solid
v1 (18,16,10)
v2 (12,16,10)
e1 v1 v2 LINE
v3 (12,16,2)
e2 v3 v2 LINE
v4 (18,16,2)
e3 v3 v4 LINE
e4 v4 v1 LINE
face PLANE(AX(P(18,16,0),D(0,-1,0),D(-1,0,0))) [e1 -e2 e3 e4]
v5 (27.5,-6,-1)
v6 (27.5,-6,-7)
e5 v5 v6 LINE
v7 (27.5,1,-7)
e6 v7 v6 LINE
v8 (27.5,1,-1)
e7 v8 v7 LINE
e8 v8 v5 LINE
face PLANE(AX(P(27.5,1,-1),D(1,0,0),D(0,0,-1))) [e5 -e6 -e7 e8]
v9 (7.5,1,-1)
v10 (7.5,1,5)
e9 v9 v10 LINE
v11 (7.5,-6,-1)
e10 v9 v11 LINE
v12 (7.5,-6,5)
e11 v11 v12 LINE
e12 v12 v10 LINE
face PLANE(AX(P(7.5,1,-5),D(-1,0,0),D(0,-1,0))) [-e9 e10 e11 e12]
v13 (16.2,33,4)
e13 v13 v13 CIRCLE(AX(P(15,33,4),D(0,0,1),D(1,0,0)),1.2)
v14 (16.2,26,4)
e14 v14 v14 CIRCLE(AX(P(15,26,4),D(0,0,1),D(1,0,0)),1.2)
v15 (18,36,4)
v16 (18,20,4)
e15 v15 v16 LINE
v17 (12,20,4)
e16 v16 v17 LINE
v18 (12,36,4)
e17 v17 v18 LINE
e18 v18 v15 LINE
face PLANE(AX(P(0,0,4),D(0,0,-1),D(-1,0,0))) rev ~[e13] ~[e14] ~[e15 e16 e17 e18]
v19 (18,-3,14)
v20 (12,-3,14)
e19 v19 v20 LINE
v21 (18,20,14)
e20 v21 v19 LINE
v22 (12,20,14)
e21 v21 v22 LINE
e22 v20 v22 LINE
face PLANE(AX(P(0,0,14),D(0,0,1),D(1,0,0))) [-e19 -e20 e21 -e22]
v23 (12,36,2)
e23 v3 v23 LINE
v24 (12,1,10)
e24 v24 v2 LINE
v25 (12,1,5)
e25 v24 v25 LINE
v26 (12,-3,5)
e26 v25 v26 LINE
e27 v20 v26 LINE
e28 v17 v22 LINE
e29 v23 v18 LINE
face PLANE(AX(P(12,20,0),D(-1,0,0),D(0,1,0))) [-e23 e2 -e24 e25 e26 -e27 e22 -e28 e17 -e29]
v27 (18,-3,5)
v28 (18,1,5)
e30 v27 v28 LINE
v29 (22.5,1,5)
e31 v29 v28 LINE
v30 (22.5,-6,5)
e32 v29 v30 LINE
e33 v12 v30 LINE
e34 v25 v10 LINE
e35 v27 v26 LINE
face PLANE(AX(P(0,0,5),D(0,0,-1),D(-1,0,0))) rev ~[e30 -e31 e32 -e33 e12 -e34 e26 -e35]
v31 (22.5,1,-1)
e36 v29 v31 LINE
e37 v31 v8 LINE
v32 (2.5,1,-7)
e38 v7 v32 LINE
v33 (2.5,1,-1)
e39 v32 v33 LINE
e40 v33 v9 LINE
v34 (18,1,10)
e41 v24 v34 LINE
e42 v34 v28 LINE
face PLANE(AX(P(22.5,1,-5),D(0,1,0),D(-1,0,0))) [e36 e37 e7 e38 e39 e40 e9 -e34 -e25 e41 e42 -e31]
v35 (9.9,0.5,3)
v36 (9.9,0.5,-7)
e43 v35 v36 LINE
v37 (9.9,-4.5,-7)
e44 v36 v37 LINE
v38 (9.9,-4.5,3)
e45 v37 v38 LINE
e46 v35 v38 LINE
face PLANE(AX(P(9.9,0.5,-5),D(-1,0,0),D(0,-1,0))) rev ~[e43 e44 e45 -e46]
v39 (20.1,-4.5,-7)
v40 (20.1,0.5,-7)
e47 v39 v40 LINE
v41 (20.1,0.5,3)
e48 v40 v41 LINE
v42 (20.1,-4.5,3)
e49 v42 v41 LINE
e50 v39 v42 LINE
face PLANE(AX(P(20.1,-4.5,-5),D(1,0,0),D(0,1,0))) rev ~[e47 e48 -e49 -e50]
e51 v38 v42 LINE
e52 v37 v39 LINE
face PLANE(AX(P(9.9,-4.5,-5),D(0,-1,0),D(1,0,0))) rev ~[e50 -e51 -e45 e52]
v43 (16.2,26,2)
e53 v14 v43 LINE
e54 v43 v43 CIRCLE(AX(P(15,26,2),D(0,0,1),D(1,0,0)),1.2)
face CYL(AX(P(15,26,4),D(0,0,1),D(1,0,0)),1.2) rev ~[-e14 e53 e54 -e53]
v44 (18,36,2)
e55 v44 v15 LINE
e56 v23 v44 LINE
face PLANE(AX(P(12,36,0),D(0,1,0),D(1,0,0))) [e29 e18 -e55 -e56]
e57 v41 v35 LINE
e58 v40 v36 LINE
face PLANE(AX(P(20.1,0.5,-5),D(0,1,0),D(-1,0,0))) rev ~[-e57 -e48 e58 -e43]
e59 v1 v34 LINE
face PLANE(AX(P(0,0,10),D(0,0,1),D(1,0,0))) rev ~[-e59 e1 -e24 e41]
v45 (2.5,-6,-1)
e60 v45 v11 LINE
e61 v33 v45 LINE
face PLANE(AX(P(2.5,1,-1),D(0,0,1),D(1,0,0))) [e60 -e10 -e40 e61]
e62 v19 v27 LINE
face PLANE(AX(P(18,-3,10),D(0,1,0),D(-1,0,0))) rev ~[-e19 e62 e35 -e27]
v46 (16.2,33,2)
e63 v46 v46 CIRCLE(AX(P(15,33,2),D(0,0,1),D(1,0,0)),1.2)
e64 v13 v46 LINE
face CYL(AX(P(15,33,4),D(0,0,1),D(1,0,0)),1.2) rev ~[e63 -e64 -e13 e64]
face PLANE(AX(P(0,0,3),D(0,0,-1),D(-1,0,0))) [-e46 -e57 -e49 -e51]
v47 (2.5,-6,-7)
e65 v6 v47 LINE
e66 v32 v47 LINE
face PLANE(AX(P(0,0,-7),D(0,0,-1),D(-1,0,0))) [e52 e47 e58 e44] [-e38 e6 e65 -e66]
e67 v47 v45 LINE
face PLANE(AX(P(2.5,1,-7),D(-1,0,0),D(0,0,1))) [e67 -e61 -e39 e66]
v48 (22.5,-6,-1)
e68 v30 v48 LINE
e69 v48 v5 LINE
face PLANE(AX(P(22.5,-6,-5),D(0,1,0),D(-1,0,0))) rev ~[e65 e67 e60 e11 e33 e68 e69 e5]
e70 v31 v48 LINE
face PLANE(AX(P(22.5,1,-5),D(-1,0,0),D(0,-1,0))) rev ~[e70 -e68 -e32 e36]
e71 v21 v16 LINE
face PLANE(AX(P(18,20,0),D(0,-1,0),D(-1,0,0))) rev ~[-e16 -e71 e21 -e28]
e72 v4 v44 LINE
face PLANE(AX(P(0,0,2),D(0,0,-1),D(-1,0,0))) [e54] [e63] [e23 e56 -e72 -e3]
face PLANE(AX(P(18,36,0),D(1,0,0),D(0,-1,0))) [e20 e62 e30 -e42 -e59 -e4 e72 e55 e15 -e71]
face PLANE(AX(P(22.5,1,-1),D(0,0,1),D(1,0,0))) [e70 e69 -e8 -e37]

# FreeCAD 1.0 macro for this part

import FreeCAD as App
import Part
import Sketcher

V = App.Vector


def add_polygon(sketch, points):
    """Adds a closed chain of lines whose ends are joined by coincident constraints."""
    first, n = sketch.GeometryCount, len(points)
    for a, b in zip(points, points[1:] + points[:1]):
        sketch.addGeometry(Part.LineSegment(App.Vector(*a, 0), App.Vector(*b, 0)), False)
    for i in range(n):
        sketch.addConstraint(Sketcher.Constraint("Coincident", first + i, 2, first + (i + 1) % n, 1))

doc = App.newDocument("Part")
body = doc.addObject("PartDesign::Body", "Body")

# Sketch on XY plane
sketch1 = body.newObject("Sketcher::SketchObject", "Sketch")
sketch1.AttachmentSupport = (doc.getObject("XY_Plane"), [""])
sketch1.MapMode = "FlatFace"
add_polygon(sketch1, [(18, 20), (12, 20), (12, 16), (18, 16)])  # lines 0-3
sketch1.addConstraint(Sketcher.Constraint("Horizontal", 0))
sketch1.addConstraint(Sketcher.Constraint("Vertical", 1))
sketch1.addConstraint(Sketcher.Constraint("Horizontal", 2))
sketch1.addConstraint(Sketcher.Constraint("Vertical", 3))
sketch1.addConstraint(Sketcher.Constraint("DistanceX", 0, 2, 0, 1, 6.0))
sketch1.addConstraint(Sketcher.Constraint("DistanceY", 1, 2, 1, 1, 4.0))
sketch1.addConstraint(Sketcher.Constraint("DistanceY", -1, 1, 0, 2, 20.0))
sketch1.addConstraint(Sketcher.Constraint("DistanceX", -1, 1, 0, 2, 12.0))
pad1 = body.newObject("PartDesign::Pad", "Pad")
pad1.Profile = sketch1
pad1.Length = 10

# Sketch on XY plane
sketch2 = body.newObject("Sketcher::SketchObject", "Sketch001")
sketch2.AttachmentSupport = (doc.getObject("XY_Plane"), [""])
sketch2.MapMode = "FlatFace"
sketch2.AttachmentOffset = App.Placement(V(0, 0, 10), App.Rotation())
add_polygon(sketch2, [(18, -3), (18, 20), (12, 20), (12, -3)])  # lines 0-3
sketch2.addConstraint(Sketcher.Constraint("Vertical", 0))
sketch2.addConstraint(Sketcher.Constraint("Horizontal", 1))
sketch2.addConstraint(Sketcher.Constraint("Vertical", 2))
sketch2.addConstraint(Sketcher.Constraint("Horizontal", 3))
sketch2.addConstraint(Sketcher.Constraint("DistanceY", 0, 1, 0, 2, 23.0))
sketch2.addConstraint(Sketcher.Constraint("DistanceX", 1, 2, 1, 1, 6.0))
sketch2.addConstraint(Sketcher.Constraint("DistanceX", -1, 1, 0, 2, 18.0))
sketch2.addConstraint(Sketcher.Constraint("DistanceY", -1, 1, 0, 2, 20.0))
pad2 = body.newObject("PartDesign::Pad", "Pad001")
pad2.Profile = sketch2
pad2.Length = 4

# Sketch on XY plane
sketch3 = body.newObject("Sketcher::SketchObject", "Sketch002")
sketch3.AttachmentSupport = (doc.getObject("XY_Plane"), [""])
sketch3.MapMode = "FlatFace"
sketch3.AttachmentOffset = App.Placement(V(0, 0, 10), App.Rotation())
add_polygon(sketch3, [(18, 1), (18, -3), (12, -3), (12, 1)])  # lines 0-3
sketch3.addConstraint(Sketcher.Constraint("Vertical", 0))
sketch3.addConstraint(Sketcher.Constraint("Horizontal", 1))
sketch3.addConstraint(Sketcher.Constraint("Vertical", 2))
sketch3.addConstraint(Sketcher.Constraint("Horizontal", 3))
sketch3.addConstraint(Sketcher.Constraint("DistanceY", 0, 2, 0, 1, 4.0))
sketch3.addConstraint(Sketcher.Constraint("DistanceX", 1, 2, 1, 1, 6.0))
sketch3.addConstraint(Sketcher.Constraint("DistanceX", -1, 1, 0, 2, 18.0))
sketch3.addConstraint(Sketcher.Constraint("DistanceY", 0, 2, -1, 1, 3.0))
pad3 = body.newObject("PartDesign::Pad", "Pad002")
pad3.Profile = sketch3
pad3.Length = 15
pad3.Reversed = True

# Sketch on XY plane
sketch4 = body.newObject("Sketcher::SketchObject", "Sketch003")
sketch4.AttachmentSupport = (doc.getObject("XY_Plane"), [""])
sketch4.MapMode = "FlatFace"
add_polygon(sketch4, [(18, 36), (18, 20), (12, 20), (12, 36)])  # lines 0-3
sketch4.addConstraint(Sketcher.Constraint("Vertical", 0))
sketch4.addConstraint(Sketcher.Constraint("Horizontal", 1))
sketch4.addConstraint(Sketcher.Constraint("Vertical", 2))
sketch4.addConstraint(Sketcher.Constraint("Horizontal", 3))
sketch4.addConstraint(Sketcher.Constraint("DistanceY", -1, 1, 0, 2, 20.0))
sketch4.addConstraint(Sketcher.Constraint("DistanceX", 1, 2, 1, 1, 6.0))
sketch4.addConstraint(Sketcher.Constraint("DistanceY", 0, 2, 0, 1, 16.0))
sketch4.addConstraint(Sketcher.Constraint("DistanceX", -1, 1, 0, 2, 18.0))
pad4 = body.newObject("PartDesign::Pad", "Pad003")
pad4.Profile = sketch4
pad4.Length = 4

# Sketch on XZ plane
sketch5 = body.newObject("Sketcher::SketchObject", "Sketch004")
sketch5.AttachmentSupport = (doc.getObject("XZ_Plane"), [""])
sketch5.MapMode = "FlatFace"
sketch5.AttachmentOffset = App.Placement(V(0, 0, -1), App.Rotation())
add_polygon(sketch5, [(18, -5), (18, 0), (22.5, 0), (22.5, -5)])  # lines 0-3
add_polygon(sketch5, [(7.5, 0), (12, 0), (12, -5), (7.5, -5)])  # lines 4-7
sketch5.addConstraint(Sketcher.Constraint("Vertical", 0))
sketch5.addConstraint(Sketcher.Constraint("Horizontal", 1))
sketch5.addConstraint(Sketcher.Constraint("Vertical", 2))
sketch5.addConstraint(Sketcher.Constraint("Horizontal", 3))
sketch5.addConstraint(Sketcher.Constraint("Horizontal", 4))
sketch5.addConstraint(Sketcher.Constraint("Vertical", 5))
sketch5.addConstraint(Sketcher.Constraint("Horizontal", 6))
sketch5.addConstraint(Sketcher.Constraint("Vertical", 7))
sketch5.addConstraint(Sketcher.Constraint("PointOnObject", 0, 2, -1))
sketch5.addConstraint(Sketcher.Constraint("PointOnObject", 4, 2, -1))
sketch5.addConstraint(Sketcher.Constraint("Horizontal", 3, 2, 5, 2))
sketch5.addConstraint(Sketcher.Constraint("Equal", 3, 4))
sketch5.addConstraint(Sketcher.Constraint("DistanceX", 6, 2, 2, 2, 15.0))
sketch5.addConstraint(Sketcher.Constraint("DistanceY", 0, 1, 0, 2, 5.0))
sketch5.addConstraint(Sketcher.Constraint("DistanceX", 1, 1, 1, 2, 4.5))
sketch5.addConstraint(Sketcher.Constraint("DistanceX", -1, 1, 0, 2, 18.0))
pad5 = body.newObject("PartDesign::Pad", "Pad004")
pad5.Profile = sketch5
pad5.Length = 4

# Sketch on XY plane
sketch6 = body.newObject("Sketcher::SketchObject", "Sketch005")
sketch6.AttachmentSupport = (doc.getObject("XY_Plane"), [""])
sketch6.MapMode = "FlatFace"
sketch6.AttachmentOffset = App.Placement(V(0, 0, -5), App.Rotation())
add_polygon(sketch6, [(8, 1), (22, 1), (22, -6), (8, -6)])  # lines 0-3
sketch6.addConstraint(Sketcher.Constraint("Horizontal", 0))
sketch6.addConstraint(Sketcher.Constraint("Vertical", 1))
sketch6.addConstraint(Sketcher.Constraint("Horizontal", 2))
sketch6.addConstraint(Sketcher.Constraint("Vertical", 3))
sketch6.addConstraint(Sketcher.Constraint("DistanceY", 1, 2, 1, 1, 7.0))
sketch6.addConstraint(Sketcher.Constraint("DistanceX", 0, 1, 0, 2, 15.0))
sketch6.addConstraint(Sketcher.Constraint("DistanceY", -1, 1, 0, 2, 1.0))
sketch6.addConstraint(Sketcher.Constraint("DistanceX", -1, 1, 0, 2, 22.5))
pad6 = body.newObject("PartDesign::Pad", "Pad005")
pad6.Profile = sketch6
pad6.Length = 10

# Sketch on XY plane
sketch7 = body.newObject("Sketcher::SketchObject", "Sketch006")
sketch7.AttachmentSupport = (doc.getObject("XY_Plane"), [""])
sketch7.MapMode = "FlatFace"
sketch7.AttachmentOffset = App.Placement(V(0, 0, -5), App.Rotation())
add_polygon(sketch7, [(10, 0), (20, 0), (20, -4), (10, -4)])  # lines 0-3
sketch7.addConstraint(Sketcher.Constraint("Horizontal", 0))
sketch7.addConstraint(Sketcher.Constraint("Vertical", 1))
sketch7.addConstraint(Sketcher.Constraint("Horizontal", 2))
sketch7.addConstraint(Sketcher.Constraint("Vertical", 3))
sketch7.addConstraint(Sketcher.Constraint("DistanceY", 1, 2, 1, 1, 5.0))
sketch7.addConstraint(Sketcher.Constraint("DistanceX", 0, 1, 0, 2, 10.2))
sketch7.addConstraint(Sketcher.Constraint("DistanceY", -1, 1, 0, 2, 0.5))
sketch7.addConstraint(Sketcher.Constraint("DistanceX", -1, 1, 0, 2, 20.1))
pocket1 = body.newObject("PartDesign::Pocket", "Pocket")
pocket1.Profile = sketch7
pocket1.Length = 8
pocket1.Reversed = True

# Sketch on XY plane
sketch8 = body.newObject("Sketcher::SketchObject", "Sketch007")
sketch8.AttachmentSupport = (doc.getObject("XY_Plane"), [""])
sketch8.MapMode = "FlatFace"
sketch8.AttachmentOffset = App.Placement(V(0, 0, -5), App.Rotation())
add_polygon(sketch8, [(8, 1), (22, 1), (22, -6), (8, -6)])  # lines 0-3
add_polygon(sketch8, [(20, 0), (10, 0), (10, -4), (20, -4)])  # lines 4-7
sketch8.addConstraint(Sketcher.Constraint("Horizontal", 0))
sketch8.addConstraint(Sketcher.Constraint("Vertical", 1))
sketch8.addConstraint(Sketcher.Constraint("Horizontal", 2))
sketch8.addConstraint(Sketcher.Constraint("Vertical", 3))
sketch8.addConstraint(Sketcher.Constraint("Horizontal", 4))
sketch8.addConstraint(Sketcher.Constraint("Vertical", 5))
sketch8.addConstraint(Sketcher.Constraint("Horizontal", 6))
sketch8.addConstraint(Sketcher.Constraint("Vertical", 7))
sketch8.addConstraint(Sketcher.Constraint("DistanceX", 0, 1, 0, 2, 15.0))
sketch8.addConstraint(Sketcher.Constraint("DistanceY", 1, 2, 1, 1, 7.0))
sketch8.addConstraint(Sketcher.Constraint("DistanceY", 5, 2, 5, 1, 5.0))
sketch8.addConstraint(Sketcher.Constraint("DistanceX", 4, 2, 4, 1, 10.2))
sketch8.addConstraint(Sketcher.Constraint("DistanceY", -1, 1, 0, 2, 1.0))
sketch8.addConstraint(Sketcher.Constraint("DistanceX", -1, 1, 0, 2, 22.5))
sketch8.addConstraint(Sketcher.Constraint("DistanceX", -1, 1, 4, 2, 9.9))
sketch8.addConstraint(Sketcher.Constraint("DistanceY", -1, 1, 4, 2, 0.5))
pad7 = body.newObject("PartDesign::Pad", "Pad006")
pad7.Profile = sketch8
pad7.Length = 2
pad7.Reversed = True

# Sketch on XZ plane
sketch9 = body.newObject("Sketcher::SketchObject", "Sketch008")
sketch9.AttachmentSupport = (doc.getObject("XZ_Plane"), [""])
sketch9.MapMode = "FlatFace"
sketch9.AttachmentOffset = App.Placement(V(0, 0, -1), App.Rotation())
add_polygon(sketch9, [(2, -1), (8, -1), (8, -7), (2, -7)])  # lines 0-3
add_polygon(sketch9, [(22, -7), (22, -1), (28, -1), (28, -7)])  # lines 4-7
sketch9.addConstraint(Sketcher.Constraint("Horizontal", 0))
sketch9.addConstraint(Sketcher.Constraint("Vertical", 1))
sketch9.addConstraint(Sketcher.Constraint("Horizontal", 2))
sketch9.addConstraint(Sketcher.Constraint("Vertical", 3))
sketch9.addConstraint(Sketcher.Constraint("Vertical", 4))
sketch9.addConstraint(Sketcher.Constraint("Horizontal", 5))
sketch9.addConstraint(Sketcher.Constraint("Vertical", 6))
sketch9.addConstraint(Sketcher.Constraint("Horizontal", 7))
sketch9.addConstraint(Sketcher.Constraint("Horizontal", 3, 2, 4, 2))
sketch9.addConstraint(Sketcher.Constraint("Horizontal", 2, 2, 6, 2))
sketch9.addConstraint(Sketcher.Constraint("Equal", 2, 5))
sketch9.addConstraint(Sketcher.Constraint("DistanceY", 1, 2, 1, 1, 6.0))
sketch9.addConstraint(Sketcher.Constraint("DistanceX", 3, 2, 5, 2, 25.0))
sketch9.addConstraint(Sketcher.Constraint("DistanceX", 0, 1, 0, 2, 5.0))
sketch9.addConstraint(Sketcher.Constraint("DistanceY", 0, 2, -1, 1, 1.0))
sketch9.addConstraint(Sketcher.Constraint("DistanceX", -1, 1, 0, 2, 7.5))
pad8 = body.newObject("PartDesign::Pad", "Pad007")
pad8.Profile = sketch9
pad8.Length = 7

# Sketch on XY plane
sketch10 = body.newObject("Sketcher::SketchObject", "Sketch009")
sketch10.AttachmentSupport = (doc.getObject("XY_Plane"), [""])
sketch10.MapMode = "FlatFace"
add_polygon(sketch10, [(18, 16), (12, 16), (12, 36), (18, 36)])  # lines 0-3
sketch10.addConstraint(Sketcher.Constraint("Horizontal", 0))
sketch10.addConstraint(Sketcher.Constraint("Vertical", 1))
sketch10.addConstraint(Sketcher.Constraint("Horizontal", 2))
sketch10.addConstraint(Sketcher.Constraint("Vertical", 3))
sketch10.addConstraint(Sketcher.Constraint("DistanceX", 0, 2, 0, 1, 6.0))
sketch10.addConstraint(Sketcher.Constraint("DistanceY", 1, 1, 1, 2, 20.0))
sketch10.addConstraint(Sketcher.Constraint("DistanceX", -1, 1, 0, 2, 12.0))
sketch10.addConstraint(Sketcher.Constraint("DistanceY", -1, 1, 0, 2, 16.0))
pocket2 = body.newObject("PartDesign::Pocket", "Pocket001")
pocket2.Profile = sketch10
pocket2.Length = 2
pocket2.Reversed = True

# Sketch on XY plane
sketch11 = body.newObject("Sketcher::SketchObject", "Sketch010")
sketch11.AttachmentSupport = (doc.getObject("XY_Plane"), [""])
sketch11.MapMode = "FlatFace"
sketch11.AttachmentOffset = App.Placement(V(0, 0, 4), App.Rotation())
sketch11.addGeometry(Part.Circle(V(15, 33, 0), V(0, 0, 1), 1.2), False)
sketch11.addGeometry(Part.Circle(V(15, 26, 0), V(0, 0, 1), 1.2), False)
sketch11.addConstraint(Sketcher.Constraint("Equal", 0, 1))
sketch11.addConstraint(Sketcher.Constraint("Vertical", 0, 3, 1, 3))
sketch11.addConstraint(Sketcher.Constraint("Diameter", 0, 2.4))
sketch11.addConstraint(Sketcher.Constraint("DistanceY", 1, 3, 0, 3, 7.0))
sketch11.addConstraint(Sketcher.Constraint("DistanceX", -1, 1, 0, 3, 15.0))
sketch11.addConstraint(Sketcher.Constraint("DistanceY", -1, 1, 0, 3, 33.0))
pocket3 = body.newObject("PartDesign::Pocket", "Pocket002")
pocket3.Profile = sketch11
pocket3.Length = 2

doc.recompute()
